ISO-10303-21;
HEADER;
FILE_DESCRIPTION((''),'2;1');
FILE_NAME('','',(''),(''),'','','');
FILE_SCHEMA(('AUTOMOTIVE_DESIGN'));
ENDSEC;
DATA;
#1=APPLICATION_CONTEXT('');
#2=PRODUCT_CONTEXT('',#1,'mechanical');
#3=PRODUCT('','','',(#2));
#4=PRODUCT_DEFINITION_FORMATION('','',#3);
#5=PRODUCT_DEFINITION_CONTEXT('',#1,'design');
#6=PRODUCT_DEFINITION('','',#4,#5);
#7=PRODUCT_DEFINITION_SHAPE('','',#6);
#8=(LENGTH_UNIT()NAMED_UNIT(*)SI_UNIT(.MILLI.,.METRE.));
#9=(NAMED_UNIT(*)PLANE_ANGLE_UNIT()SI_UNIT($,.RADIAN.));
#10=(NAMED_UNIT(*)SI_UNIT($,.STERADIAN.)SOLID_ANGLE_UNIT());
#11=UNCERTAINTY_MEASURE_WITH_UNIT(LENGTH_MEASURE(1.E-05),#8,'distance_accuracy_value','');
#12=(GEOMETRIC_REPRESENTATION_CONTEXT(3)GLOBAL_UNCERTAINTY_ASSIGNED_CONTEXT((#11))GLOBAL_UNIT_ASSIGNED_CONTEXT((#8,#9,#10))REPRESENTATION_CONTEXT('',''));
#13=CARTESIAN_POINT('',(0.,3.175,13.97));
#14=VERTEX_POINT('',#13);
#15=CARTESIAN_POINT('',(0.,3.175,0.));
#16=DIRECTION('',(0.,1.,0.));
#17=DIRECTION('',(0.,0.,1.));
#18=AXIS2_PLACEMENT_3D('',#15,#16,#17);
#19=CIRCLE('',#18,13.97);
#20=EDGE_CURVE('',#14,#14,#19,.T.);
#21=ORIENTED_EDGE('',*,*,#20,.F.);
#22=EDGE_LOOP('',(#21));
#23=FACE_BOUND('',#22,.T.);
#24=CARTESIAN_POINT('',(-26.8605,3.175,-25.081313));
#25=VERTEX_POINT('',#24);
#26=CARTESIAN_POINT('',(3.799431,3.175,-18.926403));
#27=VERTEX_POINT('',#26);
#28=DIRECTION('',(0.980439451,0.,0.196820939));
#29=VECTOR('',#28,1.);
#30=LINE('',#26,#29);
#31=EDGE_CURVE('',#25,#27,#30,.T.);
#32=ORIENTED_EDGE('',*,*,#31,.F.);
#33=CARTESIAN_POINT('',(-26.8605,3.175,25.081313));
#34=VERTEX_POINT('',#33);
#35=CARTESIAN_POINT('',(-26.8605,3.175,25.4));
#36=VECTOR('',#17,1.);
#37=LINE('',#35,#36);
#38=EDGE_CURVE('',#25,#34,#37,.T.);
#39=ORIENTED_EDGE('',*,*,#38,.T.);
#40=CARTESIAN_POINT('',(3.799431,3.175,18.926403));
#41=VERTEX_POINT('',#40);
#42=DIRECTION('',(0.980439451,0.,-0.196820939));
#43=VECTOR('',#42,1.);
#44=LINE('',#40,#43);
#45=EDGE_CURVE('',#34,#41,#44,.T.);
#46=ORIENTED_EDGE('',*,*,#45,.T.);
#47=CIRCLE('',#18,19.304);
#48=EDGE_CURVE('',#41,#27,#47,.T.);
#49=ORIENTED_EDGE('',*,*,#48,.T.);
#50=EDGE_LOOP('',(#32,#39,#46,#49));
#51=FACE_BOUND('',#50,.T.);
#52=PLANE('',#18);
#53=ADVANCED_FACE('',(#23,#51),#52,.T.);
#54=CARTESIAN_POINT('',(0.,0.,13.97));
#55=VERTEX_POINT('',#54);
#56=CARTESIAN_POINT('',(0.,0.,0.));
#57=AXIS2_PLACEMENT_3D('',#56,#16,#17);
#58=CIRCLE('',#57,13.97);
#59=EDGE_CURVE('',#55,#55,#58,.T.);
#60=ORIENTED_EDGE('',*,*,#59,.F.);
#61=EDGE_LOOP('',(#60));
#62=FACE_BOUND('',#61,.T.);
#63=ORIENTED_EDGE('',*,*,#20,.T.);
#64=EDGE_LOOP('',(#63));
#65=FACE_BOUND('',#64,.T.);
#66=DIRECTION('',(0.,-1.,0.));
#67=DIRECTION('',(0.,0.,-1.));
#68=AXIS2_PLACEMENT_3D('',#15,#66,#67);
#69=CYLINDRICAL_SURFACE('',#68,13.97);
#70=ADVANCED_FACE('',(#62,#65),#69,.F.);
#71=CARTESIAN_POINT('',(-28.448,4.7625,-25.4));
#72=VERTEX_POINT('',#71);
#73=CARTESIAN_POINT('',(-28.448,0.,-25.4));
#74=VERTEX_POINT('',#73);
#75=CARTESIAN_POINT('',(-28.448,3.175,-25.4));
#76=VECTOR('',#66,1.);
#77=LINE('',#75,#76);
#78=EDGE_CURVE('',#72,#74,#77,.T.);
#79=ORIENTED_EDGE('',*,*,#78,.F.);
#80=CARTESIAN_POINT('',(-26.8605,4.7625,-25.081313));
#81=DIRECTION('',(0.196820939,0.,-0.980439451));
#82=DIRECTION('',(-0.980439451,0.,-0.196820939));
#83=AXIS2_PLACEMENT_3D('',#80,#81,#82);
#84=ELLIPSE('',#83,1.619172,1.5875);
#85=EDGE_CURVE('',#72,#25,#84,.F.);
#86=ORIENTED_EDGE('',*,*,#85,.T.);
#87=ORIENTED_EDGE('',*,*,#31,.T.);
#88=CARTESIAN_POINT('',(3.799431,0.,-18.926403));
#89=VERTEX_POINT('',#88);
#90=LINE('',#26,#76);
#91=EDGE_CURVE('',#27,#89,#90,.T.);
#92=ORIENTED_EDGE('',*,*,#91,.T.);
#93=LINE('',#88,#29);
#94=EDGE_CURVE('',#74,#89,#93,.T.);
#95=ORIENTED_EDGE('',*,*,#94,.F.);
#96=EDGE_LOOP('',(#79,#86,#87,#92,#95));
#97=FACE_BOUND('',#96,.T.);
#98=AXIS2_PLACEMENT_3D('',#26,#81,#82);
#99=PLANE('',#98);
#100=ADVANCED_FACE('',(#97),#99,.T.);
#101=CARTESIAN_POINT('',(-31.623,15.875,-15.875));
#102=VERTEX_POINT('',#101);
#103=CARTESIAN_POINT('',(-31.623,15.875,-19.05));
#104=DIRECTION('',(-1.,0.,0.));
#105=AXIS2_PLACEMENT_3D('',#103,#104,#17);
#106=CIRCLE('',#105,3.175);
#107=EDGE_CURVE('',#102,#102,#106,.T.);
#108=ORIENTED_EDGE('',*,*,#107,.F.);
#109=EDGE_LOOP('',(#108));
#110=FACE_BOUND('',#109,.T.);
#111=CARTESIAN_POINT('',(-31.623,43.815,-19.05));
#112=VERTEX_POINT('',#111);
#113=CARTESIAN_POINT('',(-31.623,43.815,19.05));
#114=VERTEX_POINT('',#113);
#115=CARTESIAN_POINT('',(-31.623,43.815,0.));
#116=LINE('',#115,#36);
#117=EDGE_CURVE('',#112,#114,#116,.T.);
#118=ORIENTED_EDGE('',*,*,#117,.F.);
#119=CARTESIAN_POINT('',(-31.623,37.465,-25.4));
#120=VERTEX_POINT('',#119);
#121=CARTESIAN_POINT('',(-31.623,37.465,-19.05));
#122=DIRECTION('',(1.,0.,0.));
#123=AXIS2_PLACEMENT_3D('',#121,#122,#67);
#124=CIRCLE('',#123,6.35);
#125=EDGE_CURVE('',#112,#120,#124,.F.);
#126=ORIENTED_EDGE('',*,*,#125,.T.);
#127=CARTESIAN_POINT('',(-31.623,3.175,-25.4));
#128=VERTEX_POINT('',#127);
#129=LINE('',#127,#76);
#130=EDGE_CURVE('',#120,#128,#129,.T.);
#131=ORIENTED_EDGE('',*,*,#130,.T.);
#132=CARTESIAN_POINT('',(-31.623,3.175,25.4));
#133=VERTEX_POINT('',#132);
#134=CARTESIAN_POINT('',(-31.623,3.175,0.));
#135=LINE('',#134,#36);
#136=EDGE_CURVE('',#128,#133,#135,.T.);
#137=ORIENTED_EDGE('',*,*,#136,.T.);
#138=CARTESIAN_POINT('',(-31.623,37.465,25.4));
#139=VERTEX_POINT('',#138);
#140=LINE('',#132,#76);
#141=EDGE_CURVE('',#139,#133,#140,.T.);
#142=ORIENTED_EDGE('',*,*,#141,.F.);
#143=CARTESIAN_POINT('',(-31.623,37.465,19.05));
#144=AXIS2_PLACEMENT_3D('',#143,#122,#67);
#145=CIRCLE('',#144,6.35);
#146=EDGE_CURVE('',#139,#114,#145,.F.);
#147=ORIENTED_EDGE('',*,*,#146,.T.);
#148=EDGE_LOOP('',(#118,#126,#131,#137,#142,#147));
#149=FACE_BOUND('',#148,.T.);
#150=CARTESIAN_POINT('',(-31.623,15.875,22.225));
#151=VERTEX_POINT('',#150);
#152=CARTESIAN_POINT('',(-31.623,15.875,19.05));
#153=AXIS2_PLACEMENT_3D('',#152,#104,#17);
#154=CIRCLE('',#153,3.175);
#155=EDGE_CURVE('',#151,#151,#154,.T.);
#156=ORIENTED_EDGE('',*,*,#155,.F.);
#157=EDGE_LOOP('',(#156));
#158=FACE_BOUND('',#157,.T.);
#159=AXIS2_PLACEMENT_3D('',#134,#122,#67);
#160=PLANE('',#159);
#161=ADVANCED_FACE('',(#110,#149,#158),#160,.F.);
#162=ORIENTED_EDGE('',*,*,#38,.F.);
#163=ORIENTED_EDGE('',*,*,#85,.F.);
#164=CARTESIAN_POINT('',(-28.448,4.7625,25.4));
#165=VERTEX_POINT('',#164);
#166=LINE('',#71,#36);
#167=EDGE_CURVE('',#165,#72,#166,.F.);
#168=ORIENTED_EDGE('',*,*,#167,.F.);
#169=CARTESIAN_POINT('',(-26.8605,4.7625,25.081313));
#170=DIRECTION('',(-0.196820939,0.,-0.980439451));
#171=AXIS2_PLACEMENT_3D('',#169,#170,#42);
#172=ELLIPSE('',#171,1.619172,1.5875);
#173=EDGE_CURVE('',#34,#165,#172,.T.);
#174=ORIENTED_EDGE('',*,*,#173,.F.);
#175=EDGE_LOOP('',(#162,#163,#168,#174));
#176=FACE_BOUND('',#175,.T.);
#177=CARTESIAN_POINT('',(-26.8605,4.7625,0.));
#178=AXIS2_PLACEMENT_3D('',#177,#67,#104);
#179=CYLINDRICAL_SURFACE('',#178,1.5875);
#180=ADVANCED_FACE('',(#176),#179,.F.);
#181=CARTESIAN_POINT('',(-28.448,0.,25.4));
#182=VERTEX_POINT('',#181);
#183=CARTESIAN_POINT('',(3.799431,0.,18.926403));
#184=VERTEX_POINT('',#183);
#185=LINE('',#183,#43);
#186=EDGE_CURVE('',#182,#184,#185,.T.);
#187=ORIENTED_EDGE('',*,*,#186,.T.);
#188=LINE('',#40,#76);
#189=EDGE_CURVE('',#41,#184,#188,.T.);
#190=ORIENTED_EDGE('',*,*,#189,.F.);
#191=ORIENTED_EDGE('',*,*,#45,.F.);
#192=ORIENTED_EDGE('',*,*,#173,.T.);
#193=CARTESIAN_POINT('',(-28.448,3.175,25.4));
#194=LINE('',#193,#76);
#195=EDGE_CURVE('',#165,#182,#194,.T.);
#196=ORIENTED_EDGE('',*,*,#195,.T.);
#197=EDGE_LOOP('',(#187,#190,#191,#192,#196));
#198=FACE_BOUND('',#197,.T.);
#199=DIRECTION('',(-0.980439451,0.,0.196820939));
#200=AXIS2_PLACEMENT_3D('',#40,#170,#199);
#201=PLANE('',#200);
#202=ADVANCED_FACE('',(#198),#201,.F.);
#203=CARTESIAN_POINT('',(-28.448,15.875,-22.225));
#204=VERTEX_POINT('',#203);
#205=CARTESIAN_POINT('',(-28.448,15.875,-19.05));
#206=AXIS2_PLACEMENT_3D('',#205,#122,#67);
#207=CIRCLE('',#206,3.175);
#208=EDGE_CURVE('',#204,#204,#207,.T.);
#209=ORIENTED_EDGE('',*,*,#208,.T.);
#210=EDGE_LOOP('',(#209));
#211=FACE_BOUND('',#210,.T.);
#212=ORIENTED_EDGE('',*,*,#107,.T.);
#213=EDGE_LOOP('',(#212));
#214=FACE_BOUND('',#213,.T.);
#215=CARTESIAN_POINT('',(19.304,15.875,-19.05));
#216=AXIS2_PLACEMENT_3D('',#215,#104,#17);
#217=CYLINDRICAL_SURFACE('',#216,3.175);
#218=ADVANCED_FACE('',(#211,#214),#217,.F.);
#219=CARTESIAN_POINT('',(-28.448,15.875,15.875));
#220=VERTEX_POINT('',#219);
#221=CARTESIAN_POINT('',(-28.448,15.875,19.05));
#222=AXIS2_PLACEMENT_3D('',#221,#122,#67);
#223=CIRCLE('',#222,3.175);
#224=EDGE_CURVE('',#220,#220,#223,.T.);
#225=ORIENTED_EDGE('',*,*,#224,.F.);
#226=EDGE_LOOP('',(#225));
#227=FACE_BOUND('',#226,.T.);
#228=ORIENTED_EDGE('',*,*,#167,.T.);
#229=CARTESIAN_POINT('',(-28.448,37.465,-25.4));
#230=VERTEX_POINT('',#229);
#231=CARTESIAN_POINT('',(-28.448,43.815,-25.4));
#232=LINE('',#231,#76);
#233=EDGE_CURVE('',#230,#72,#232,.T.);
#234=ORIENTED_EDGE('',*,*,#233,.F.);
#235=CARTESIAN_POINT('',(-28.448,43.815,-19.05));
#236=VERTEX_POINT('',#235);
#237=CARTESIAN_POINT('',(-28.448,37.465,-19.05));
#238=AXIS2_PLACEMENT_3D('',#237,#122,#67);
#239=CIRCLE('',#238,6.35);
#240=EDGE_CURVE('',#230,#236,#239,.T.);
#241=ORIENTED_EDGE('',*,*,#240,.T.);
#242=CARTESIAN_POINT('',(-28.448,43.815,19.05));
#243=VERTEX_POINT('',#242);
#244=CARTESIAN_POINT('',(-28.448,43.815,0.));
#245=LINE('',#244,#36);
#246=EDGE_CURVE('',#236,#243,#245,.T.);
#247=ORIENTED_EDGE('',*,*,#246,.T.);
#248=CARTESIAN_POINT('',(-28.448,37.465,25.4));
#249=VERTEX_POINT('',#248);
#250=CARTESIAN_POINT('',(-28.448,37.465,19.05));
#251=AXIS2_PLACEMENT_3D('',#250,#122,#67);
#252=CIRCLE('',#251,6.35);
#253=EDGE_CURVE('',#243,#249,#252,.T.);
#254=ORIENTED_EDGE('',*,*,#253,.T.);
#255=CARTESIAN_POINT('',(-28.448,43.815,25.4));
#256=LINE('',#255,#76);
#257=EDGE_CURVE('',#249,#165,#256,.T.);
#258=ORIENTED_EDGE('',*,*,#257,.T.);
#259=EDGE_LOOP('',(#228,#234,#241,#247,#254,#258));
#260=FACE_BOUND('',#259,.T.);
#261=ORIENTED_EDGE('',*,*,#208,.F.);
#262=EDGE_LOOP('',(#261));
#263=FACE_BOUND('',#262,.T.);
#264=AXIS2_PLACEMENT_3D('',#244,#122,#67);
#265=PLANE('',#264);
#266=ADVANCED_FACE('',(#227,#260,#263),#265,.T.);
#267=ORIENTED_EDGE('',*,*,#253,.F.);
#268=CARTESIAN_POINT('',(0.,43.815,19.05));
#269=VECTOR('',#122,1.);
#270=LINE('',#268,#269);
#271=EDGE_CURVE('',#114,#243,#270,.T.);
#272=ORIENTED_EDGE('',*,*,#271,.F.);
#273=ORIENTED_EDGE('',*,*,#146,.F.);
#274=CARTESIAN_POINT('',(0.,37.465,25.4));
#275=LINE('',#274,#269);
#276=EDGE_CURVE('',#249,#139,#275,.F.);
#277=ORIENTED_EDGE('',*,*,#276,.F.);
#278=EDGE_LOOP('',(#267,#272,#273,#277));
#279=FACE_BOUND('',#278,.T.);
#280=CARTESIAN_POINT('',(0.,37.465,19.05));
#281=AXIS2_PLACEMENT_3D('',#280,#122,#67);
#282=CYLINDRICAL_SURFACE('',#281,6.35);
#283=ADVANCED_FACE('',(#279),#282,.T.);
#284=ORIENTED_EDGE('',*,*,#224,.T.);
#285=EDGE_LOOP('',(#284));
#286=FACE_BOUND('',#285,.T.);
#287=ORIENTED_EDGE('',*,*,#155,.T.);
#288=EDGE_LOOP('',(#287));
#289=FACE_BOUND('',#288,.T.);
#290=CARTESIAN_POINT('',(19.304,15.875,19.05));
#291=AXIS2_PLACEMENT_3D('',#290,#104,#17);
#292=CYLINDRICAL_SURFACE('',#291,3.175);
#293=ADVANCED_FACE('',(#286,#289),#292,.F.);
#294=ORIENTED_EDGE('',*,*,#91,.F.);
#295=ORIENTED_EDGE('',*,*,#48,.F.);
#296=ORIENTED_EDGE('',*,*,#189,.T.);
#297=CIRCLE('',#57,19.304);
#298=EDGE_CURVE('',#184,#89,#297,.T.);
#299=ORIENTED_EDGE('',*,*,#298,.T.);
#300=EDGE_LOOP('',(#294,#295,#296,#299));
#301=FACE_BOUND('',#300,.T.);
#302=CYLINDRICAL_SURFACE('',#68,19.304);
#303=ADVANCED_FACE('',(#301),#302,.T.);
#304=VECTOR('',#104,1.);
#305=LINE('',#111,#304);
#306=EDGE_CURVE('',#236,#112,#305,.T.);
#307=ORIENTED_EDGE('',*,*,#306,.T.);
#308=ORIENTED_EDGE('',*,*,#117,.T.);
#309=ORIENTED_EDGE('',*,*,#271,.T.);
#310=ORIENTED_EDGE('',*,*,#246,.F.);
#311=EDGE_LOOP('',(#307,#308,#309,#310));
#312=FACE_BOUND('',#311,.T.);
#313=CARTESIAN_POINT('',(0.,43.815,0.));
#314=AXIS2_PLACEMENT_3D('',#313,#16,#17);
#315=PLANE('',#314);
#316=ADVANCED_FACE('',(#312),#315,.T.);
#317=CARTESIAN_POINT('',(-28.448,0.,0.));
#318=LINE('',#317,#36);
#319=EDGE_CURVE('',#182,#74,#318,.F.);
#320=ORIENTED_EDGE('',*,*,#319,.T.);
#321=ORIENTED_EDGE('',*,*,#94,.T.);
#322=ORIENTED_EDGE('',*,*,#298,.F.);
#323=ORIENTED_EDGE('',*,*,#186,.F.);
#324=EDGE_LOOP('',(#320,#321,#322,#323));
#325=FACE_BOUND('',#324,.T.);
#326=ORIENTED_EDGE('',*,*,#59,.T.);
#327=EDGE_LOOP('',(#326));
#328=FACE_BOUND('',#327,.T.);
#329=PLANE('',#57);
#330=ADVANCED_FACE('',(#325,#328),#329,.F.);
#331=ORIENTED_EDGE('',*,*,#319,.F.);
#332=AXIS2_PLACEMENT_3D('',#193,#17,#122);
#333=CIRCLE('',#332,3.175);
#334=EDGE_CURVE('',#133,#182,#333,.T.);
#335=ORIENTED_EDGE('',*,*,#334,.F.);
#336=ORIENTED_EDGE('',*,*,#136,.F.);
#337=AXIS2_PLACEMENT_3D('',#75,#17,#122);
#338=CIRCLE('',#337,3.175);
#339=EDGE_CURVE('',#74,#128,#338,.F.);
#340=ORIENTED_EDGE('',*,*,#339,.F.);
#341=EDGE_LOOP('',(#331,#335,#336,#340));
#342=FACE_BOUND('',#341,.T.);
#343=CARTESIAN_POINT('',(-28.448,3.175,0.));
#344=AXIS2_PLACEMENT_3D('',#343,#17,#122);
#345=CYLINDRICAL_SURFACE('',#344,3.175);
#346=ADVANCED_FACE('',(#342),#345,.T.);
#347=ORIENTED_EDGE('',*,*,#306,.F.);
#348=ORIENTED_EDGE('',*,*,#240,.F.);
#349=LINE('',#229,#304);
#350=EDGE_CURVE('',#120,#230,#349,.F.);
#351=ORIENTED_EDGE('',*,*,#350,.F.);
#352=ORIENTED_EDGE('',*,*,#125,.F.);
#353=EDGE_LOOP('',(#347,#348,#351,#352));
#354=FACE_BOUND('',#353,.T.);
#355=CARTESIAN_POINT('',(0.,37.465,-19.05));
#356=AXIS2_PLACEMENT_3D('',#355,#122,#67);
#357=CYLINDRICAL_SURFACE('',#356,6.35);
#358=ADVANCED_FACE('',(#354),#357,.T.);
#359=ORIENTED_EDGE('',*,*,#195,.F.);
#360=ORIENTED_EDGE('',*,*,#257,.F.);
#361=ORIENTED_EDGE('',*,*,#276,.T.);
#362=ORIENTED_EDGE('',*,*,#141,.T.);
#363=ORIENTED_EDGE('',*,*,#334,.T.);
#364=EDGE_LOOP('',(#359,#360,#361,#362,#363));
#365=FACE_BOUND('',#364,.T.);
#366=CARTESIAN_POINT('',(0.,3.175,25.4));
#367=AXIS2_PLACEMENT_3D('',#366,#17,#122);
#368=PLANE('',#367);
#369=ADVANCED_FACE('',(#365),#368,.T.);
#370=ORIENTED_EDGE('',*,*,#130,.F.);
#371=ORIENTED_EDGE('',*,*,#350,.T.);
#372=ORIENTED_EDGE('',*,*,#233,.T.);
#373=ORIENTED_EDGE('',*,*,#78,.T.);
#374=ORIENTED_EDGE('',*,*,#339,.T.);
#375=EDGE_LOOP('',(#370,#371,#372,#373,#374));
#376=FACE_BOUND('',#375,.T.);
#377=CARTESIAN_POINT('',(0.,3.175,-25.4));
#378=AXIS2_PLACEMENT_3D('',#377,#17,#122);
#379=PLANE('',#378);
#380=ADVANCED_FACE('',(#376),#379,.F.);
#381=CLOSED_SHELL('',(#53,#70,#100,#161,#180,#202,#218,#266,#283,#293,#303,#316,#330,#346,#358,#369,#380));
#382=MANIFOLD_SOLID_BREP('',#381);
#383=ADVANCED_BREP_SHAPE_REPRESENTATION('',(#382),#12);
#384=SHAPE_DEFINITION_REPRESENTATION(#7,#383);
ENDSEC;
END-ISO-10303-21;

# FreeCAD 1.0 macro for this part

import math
import FreeCAD as App
import Part
import Sketcher
Q = App.Units.Quantity


def edges_at(feature, points):
    """Names of the edges that pass closest to the given points."""
    edges = feature.Shape.Edges
    near = lambda p: min(range(len(edges)), key=lambda i: edges[i].distToShape(Part.Vertex(*p))[0])
    return sorted({f"Edge{near(p) + 1}" for p in points})

doc = App.newDocument("Part")
body = doc.addObject("PartDesign::Body", "Body")

# Sketch on XZ plane
sketch1 = body.newObject("Sketcher::SketchObject", "Sketch")
sketch1.AttachmentSupport = (doc.getObject("XZ_Plane"), [""])
sketch1.MapMode = "FlatFace"
sketch1.addGeometry([
    Part.ArcOfCircle(Part.Circle(App.Vector(0, 0, 0), App.Vector(0, 0, 1), 19.304), math.radians(-78.648883), math.radians(78.648883)),  # 0
    Part.LineSegment(App.Vector(3.799431, -18.926403, 0), App.Vector(-28.448, -25.4, 0)),  # 1
    Part.LineSegment(App.Vector(-28.448, -25.4, 0), App.Vector(-31.623, -25.4, 0)),  # 2
    Part.LineSegment(App.Vector(-31.623, -25.4, 0), App.Vector(-31.623, 25.4, 0)),  # 3
    Part.LineSegment(App.Vector(-31.623, 25.4, 0), App.Vector(-28.448, 25.4, 0)),  # 4
    Part.LineSegment(App.Vector(-28.448, 25.4, 0), App.Vector(3.799431, 18.926403, 0)),  # 5
    Part.Circle(App.Vector(0, 0, 0), App.Vector(0, 0, 1), 13.97),  # 6
], False)
sketch1.addConstraint([
    Sketcher.Constraint("Tangent", 0, 1, 1, 1),
    Sketcher.Constraint("Coincident", 1, 2, 2, 1),
    Sketcher.Constraint("Coincident", 2, 2, 3, 1),
    Sketcher.Constraint("Coincident", 3, 2, 4, 1),
    Sketcher.Constraint("Coincident", 4, 2, 5, 1),
    Sketcher.Constraint("Tangent", 5, 2, 0, 2),
    Sketcher.Constraint("Horizontal", 2),
    Sketcher.Constraint("Vertical", 3),
    Sketcher.Constraint("Horizontal", 4),
    Sketcher.Constraint("Coincident", 0, 3, -1, 1),
    Sketcher.Constraint("Coincident", 6, 3, -1, 1),
    Sketcher.Constraint("Symmetric", 1, 2, 4, 2, -1),
    Sketcher.Constraint("Diameter", 6, Q("1.1 in")),
    Sketcher.Constraint("DistanceY", 3, 1, 3, 2, Q("2 in")),
    Sketcher.Constraint("Radius", 0, Q("0.76 in")),
    Sketcher.Constraint("DistanceX", 2, 2, 2, 1, Q("0.125 in")),
    Sketcher.Constraint("DistanceX", 1, 2, -1, 1, Q("1.12 in")),
])
pad1 = body.newObject("PartDesign::Pad", "Pad")
pad1.Profile = sketch1
pad1.Length = Q("0.125 in")
pad1.Reversed = True

# Sketch on XZ plane
sketch2 = body.newObject("Sketcher::SketchObject", "Sketch001")
sketch2.AttachmentSupport = (doc.getObject("XZ_Plane"), [""])
sketch2.MapMode = "FlatFace"
sketch2.AttachmentOffset = App.Placement(App.Vector(0, 0, -0.125 * 25.4), App.Rotation())
sketch2.addGeometry([
    Part.LineSegment(App.Vector(-31.623, -25.4, 0), App.Vector(-31.623, 25.4, 0)),
    Part.LineSegment(App.Vector(-31.623, 25.4, 0), App.Vector(-28.448, 25.4, 0)),
    Part.LineSegment(App.Vector(-28.448, 25.4, 0), App.Vector(-28.448, -25.4, 0)),
    Part.LineSegment(App.Vector(-28.448, -25.4, 0), App.Vector(-31.623, -25.4, 0)),
], False)
sketch2.addConstraint([
    Sketcher.Constraint("Coincident", 0, 2, 1, 1),
    Sketcher.Constraint("Coincident", 1, 2, 2, 1),
    Sketcher.Constraint("Coincident", 2, 2, 3, 1),
    Sketcher.Constraint("Coincident", 3, 2, 0, 1),
    Sketcher.Constraint("Vertical", 0),
    Sketcher.Constraint("Horizontal", 1),
    Sketcher.Constraint("Vertical", 2),
    Sketcher.Constraint("Horizontal", 3),
    Sketcher.Constraint("DistanceY", 0, 1, 0, 2, Q("2 in")),
    Sketcher.Constraint("DistanceY", -1, 1, 0, 2, Q("1 in")),
    Sketcher.Constraint("DistanceX", 1, 1, 1, 2, Q("0.125 in")),
    Sketcher.Constraint("DistanceX", 1, 2, -1, 1, Q("1.12 in")),
])
pad2 = body.newObject("PartDesign::Pad", "Pad001")
pad2.Profile = sketch2
pad2.Length = Q("1.6 in")
pad2.Reversed = True
doc.recompute()

fillet = body.newObject("PartDesign::Fillet", "Fillet")
fillet.Base = (pad2, edges_at(pad2, [(-28.448, 3.175, 0)]))
fillet.Radius = Q("0.0625 in")
doc.recompute()

fillet2 = body.newObject("PartDesign::Fillet", "Fillet001")
fillet2.Base = (fillet, edges_at(fillet, [(-31.623, 0, 0)]))
fillet2.Radius = Q("0.125 in")

# Sketch on YZ plane
sketch3 = body.newObject("Sketcher::SketchObject", "Sketch002")
sketch3.AttachmentSupport = (doc.getObject("YZ_Plane"), [""])
sketch3.MapMode = "FlatFace"
sketch3.AttachmentOffset = App.Placement(App.Vector(0, 0, -1.245 * 25.4), App.Rotation())
sketch3.addGeometry([
    Part.Circle(App.Vector(15.875, -19.05, 0), App.Vector(0, 0, 1), 3.175),
    Part.Circle(App.Vector(15.875, 19.05, 0), App.Vector(0, 0, 1), 3.175),
], False)
sketch3.addConstraint([
    Sketcher.Constraint("Equal", 0, 1),
    Sketcher.Constraint("Symmetric", 0, 3, 1, 3, -1),
    Sketcher.Constraint("Diameter", 0, Q("0.25 in")),
    Sketcher.Constraint("DistanceY", 0, 3, 1, 3, Q("1.5 in")),
    Sketcher.Constraint("DistanceX", -1, 1, 0, 3, Q("0.625 in")),
])
pocket1 = body.newObject("PartDesign::Pocket", "Pocket")
pocket1.Profile = sketch3
pocket1.Type = "ThroughAll"
pocket1.Reversed = True
doc.recompute()

fillet3 = body.newObject("PartDesign::Fillet", "Fillet002")
fillet3.Base = (pocket1, edges_at(pocket1, [(-30.035, 43.815, -25.4), (-30.035, 43.815, 25.4)]))
fillet3.Radius = Q("0.25 in")

doc.recompute()
